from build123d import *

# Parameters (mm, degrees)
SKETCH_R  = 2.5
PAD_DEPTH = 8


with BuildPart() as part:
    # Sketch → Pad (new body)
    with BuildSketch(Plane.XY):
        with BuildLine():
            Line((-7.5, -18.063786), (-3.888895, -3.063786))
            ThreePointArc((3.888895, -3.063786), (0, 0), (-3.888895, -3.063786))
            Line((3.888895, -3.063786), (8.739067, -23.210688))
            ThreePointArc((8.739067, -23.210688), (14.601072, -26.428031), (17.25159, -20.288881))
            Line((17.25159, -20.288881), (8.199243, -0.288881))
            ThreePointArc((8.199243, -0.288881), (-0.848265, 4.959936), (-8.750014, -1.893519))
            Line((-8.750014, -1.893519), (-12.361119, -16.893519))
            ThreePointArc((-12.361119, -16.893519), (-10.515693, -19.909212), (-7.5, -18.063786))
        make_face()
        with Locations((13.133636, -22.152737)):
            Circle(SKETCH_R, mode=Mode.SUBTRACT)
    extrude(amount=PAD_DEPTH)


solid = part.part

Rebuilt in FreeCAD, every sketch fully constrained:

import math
import FreeCAD as App
import Part
import Sketcher

V = App.Vector
Q = App.Units.Quantity

doc = App.newDocument("Part")
params = doc.addObject("Spreadsheet::Sheet", "Params")
for row, (alias, value) in enumerate([
    ("sketch1_diameter", "5 mm"),
    ("sketch1_radius", "4 mm"),
    ("pad1_length", "8 mm"),
], start=1):
    params.set(f"A{row}", alias)
    params.set(f"B{row}", "=" + value)
    params.setAlias(f"B{row}", alias)

body = doc.addObject("PartDesign::Body", "Body")

# Sketch on XY plane
sketch1 = doc.addObject("Sketcher::SketchObject", "Sketch")
body.addObject(sketch1)
sketch1.AttachmentSupport = (doc.XY_Plane, [""])
sketch1.MapMode = "FlatFace"
sketch1.addGeometry([
    Part.LineSegment(V(-7.5, -18.1, 0), V(-3.9, -3.1, 0)),  # 0
    Part.ArcOfCircle(Part.Circle(V(0, -4, 0), V(0, 0, 1), 4), math.radians(14), math.radians(166)),  # 1
    Part.LineSegment(V(3.9, -3.1, 0), V(8.7, -23.2, 0)),  # 2
    Part.ArcOfCircle(Part.Circle(V(13.1, -22.2, 0), V(0, 0, 1), 4.5), math.radians(-166), math.radians(24)),  # 3
    Part.LineSegment(V(17.3, -20.3, 0), V(8.2, -0.3, 0)),  # 4
    Part.ArcOfCircle(Part.Circle(V(0, -4, 0), V(0, 0, 1), 9), math.radians(24), math.radians(166)),  # 5
    Part.LineSegment(V(-8.8, -1.9, 0), V(-12.4, -16.9, 0)),  # 6
    Part.ArcOfCircle(Part.Circle(V(-9.9, -17.5, 0), V(0, 0, 1), 2.5), math.radians(166), math.radians(346)),  # 7
    Part.Circle(V(13.1, -22.2, 0), V(0, 0, 1), 2.5),  # 8
], False)
sketch1.addConstraint([
    Sketcher.Constraint("Tangent", 0, 2, 1, 2),
    Sketcher.Constraint("Tangent", 1, 1, 2, 1),
    Sketcher.Constraint("Tangent", 2, 2, 3, 1),
    Sketcher.Constraint("Tangent", 3, 2, 4, 1),
    Sketcher.Constraint("Tangent", 4, 2, 5, 1),
    Sketcher.Constraint("Tangent", 5, 2, 6, 1),
    Sketcher.Constraint("Tangent", 6, 2, 7, 1),
    Sketcher.Constraint("Tangent", 7, 2, 0, 1),
    Sketcher.Constraint("Coincident", 5, 3, 1, 3),
    Sketcher.Constraint("Coincident", 8, 3, 3, 3),
    Sketcher.Constraint("Equal", 7, 8),
    Sketcher.Constraint("Symmetric", 0, 2, 1, 1, -2),
    Sketcher.Constraint("Parallel", 0, 6),
    Sketcher.Constraint("Diameter", 8, Q("5 mm")),
    Sketcher.Constraint("Radius", 1, Q("4 mm")),
    Sketcher.Constraint("DistanceY", 1, 3, -1, 1, Q("4 mm")),
    Sketcher.Constraint("DistanceY", 3, 2, 4, 2, Q("20 mm")),
    Sketcher.Constraint("DistanceY", 6, 2, 5, 2, Q("15 mm")),
    Sketcher.Constraint("DistanceX", 7, 2, -1, 1, Q("7.5 mm")),
    Sketcher.Constraint("Radius", 3, Q("4.520122 mm")),
])
sketch1.setExpression("Constraints[13]", "Params.sketch1_diameter")
sketch1.setExpression("Constraints[14]", "Params.sketch1_radius")
pad1 = doc.addObject("PartDesign::Pad", "Pad")
body.addObject(pad1)
pad1.Profile = sketch1
pad1.setExpression("Length", "Params.pad1_length")

doc.recompute()
